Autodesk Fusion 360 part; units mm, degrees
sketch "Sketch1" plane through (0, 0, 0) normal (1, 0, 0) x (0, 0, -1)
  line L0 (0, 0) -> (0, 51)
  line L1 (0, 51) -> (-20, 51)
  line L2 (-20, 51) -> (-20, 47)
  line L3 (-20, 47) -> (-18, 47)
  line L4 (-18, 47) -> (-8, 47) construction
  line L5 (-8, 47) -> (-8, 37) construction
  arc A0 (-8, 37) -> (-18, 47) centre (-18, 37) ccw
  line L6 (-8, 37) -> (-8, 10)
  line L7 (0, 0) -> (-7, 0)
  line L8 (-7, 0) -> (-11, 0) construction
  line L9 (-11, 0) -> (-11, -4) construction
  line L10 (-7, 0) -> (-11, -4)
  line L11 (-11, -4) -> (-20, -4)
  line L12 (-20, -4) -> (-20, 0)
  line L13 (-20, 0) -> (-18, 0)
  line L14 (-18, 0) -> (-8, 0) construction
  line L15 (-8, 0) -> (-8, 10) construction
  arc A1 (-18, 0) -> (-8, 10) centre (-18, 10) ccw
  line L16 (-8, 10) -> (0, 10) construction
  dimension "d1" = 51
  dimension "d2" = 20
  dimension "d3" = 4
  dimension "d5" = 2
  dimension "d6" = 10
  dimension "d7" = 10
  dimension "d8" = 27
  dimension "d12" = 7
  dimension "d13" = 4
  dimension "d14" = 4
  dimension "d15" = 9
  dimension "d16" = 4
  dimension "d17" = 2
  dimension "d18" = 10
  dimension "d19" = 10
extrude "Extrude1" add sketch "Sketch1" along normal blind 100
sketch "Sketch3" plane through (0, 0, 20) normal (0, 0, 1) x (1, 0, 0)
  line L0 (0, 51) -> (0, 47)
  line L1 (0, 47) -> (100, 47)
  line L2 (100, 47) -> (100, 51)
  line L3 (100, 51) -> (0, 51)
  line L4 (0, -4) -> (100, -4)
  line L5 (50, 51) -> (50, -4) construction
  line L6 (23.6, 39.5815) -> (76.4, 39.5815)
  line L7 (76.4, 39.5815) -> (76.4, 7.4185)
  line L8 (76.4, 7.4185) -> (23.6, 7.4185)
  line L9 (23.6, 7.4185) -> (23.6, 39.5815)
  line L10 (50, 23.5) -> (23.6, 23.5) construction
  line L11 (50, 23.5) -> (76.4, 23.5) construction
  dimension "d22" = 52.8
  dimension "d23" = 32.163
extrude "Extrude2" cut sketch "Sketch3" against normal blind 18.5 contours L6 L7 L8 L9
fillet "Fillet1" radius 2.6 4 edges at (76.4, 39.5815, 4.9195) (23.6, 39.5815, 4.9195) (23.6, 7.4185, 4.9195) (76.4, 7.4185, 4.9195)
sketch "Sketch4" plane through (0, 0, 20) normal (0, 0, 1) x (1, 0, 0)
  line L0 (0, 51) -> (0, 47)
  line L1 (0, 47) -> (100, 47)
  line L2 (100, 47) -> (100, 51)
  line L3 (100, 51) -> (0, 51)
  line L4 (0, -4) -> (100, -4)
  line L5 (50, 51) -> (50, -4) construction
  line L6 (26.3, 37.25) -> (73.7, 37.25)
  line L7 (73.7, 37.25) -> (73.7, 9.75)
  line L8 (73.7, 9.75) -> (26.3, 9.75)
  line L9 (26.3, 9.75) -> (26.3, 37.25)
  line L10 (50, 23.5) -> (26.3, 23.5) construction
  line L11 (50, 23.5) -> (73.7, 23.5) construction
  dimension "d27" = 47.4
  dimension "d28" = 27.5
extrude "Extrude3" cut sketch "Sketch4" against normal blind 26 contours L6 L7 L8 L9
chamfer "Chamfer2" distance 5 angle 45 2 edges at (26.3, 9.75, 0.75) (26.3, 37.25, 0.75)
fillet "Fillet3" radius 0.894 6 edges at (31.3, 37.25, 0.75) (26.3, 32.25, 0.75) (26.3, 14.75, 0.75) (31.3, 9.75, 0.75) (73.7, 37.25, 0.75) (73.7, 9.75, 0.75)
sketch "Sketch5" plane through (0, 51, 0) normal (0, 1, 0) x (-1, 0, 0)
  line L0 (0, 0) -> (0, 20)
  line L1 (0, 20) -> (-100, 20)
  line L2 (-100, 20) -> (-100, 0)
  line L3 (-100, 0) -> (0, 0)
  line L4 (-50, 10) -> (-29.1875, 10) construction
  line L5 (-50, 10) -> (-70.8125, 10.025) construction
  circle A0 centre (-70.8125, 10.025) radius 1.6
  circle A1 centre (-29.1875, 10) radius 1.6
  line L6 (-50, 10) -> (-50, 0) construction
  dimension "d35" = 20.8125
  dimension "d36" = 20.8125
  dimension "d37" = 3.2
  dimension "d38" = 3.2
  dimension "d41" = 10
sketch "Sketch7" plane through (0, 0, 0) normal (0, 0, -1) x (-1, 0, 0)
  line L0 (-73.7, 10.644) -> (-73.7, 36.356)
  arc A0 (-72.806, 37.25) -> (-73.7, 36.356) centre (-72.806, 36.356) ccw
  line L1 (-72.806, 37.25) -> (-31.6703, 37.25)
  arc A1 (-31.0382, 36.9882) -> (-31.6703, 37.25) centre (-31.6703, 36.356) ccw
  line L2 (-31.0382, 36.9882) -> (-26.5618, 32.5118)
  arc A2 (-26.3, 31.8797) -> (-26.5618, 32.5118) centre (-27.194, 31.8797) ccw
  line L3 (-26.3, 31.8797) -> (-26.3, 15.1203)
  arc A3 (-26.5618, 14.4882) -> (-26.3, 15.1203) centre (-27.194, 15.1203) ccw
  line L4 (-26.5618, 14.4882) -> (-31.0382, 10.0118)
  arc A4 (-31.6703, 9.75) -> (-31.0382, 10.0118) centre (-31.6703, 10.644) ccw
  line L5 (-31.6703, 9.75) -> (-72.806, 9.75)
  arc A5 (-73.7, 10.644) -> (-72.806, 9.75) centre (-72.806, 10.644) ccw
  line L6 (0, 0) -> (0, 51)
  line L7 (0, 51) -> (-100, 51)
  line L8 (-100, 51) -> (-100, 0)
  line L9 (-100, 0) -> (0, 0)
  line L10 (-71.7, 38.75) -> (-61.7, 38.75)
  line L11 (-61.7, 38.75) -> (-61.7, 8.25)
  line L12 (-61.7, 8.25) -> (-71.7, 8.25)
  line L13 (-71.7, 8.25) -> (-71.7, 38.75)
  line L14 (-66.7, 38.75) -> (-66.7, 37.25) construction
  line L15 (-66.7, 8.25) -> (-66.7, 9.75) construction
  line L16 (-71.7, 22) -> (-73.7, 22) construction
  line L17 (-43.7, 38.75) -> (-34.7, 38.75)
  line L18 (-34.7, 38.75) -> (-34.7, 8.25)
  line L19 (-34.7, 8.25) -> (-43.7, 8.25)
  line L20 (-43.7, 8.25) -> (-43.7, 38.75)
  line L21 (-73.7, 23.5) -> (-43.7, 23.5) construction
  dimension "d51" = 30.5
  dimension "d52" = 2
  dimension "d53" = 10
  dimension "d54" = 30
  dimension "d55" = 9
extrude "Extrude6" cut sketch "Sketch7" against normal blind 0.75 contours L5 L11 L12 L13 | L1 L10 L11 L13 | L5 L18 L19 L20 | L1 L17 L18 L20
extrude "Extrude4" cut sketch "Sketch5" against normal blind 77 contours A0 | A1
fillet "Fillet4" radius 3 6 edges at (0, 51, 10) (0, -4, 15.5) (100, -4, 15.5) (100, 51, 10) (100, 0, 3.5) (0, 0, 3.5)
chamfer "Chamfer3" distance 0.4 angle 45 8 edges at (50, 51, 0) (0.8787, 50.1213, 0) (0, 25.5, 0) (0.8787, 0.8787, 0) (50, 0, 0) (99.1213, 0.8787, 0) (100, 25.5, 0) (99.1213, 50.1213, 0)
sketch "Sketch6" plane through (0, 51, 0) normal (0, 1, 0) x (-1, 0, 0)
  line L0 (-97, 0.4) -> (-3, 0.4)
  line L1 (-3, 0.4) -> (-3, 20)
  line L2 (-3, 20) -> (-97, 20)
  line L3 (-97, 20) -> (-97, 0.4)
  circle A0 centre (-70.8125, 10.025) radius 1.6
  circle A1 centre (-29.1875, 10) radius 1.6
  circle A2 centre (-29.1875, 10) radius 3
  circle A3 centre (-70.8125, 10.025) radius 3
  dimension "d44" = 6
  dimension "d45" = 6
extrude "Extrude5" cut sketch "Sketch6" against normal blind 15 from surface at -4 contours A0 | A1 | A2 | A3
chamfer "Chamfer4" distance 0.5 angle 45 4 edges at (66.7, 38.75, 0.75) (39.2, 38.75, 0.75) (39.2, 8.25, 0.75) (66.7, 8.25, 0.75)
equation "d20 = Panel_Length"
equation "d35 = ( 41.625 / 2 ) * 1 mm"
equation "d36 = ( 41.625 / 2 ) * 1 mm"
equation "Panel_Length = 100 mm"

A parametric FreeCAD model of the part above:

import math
import FreeCAD as App
import Part
import Sketcher


def edges_at(feature, points):
    """Names of the edges that pass closest to the given points."""
    edges = feature.Shape.Edges
    near = lambda p: min(range(len(edges)), key=lambda i: edges[i].distToShape(Part.Vertex(*p))[0])
    return sorted({f"Edge{near(p) + 1}" for p in points})


def add_polygon(sketch, points):
    """Adds a closed chain of lines whose ends are joined by coincident constraints."""
    first, n = sketch.GeometryCount, len(points)
    for a, b in zip(points, points[1:] + points[:1]):
        sketch.addGeometry(Part.LineSegment(App.Vector(*a, 0), App.Vector(*b, 0)), False)
    for i in range(n):
        sketch.addConstraint(Sketcher.Constraint("Coincident", first + i, 2, first + (i + 1) % n, 1))

doc = App.newDocument("Part")
body = doc.addObject("PartDesign::Body", "Body")

# Sketch on YZ plane
sketch1 = doc.addObject("Sketcher::SketchObject", "Sketch")
body.addObject(sketch1)
sketch1.AttachmentSupport = (doc.YZ_Plane, [""])
sketch1.MapMode = "FlatFace"
sketch1.addGeometry(Part.LineSegment(App.Vector(0, 7, 0), App.Vector(0, 0, 0)), False)
sketch1.addGeometry(Part.LineSegment(App.Vector(0, 0, 0), App.Vector(51, 0, 0)), False)
sketch1.addGeometry(Part.LineSegment(App.Vector(51, 0, 0), App.Vector(51, 20, 0)), False)
sketch1.addGeometry(Part.LineSegment(App.Vector(51, 20, 0), App.Vector(47, 20, 0)), False)
sketch1.addGeometry(Part.LineSegment(App.Vector(47, 20, 0), App.Vector(47, 18, 0)), False)
sketch1.addGeometry(Part.ArcOfCircle(Part.Circle(App.Vector(37, 18, 0), App.Vector(0, 0, 1), 10), math.radians(-90), math.radians(0)), False)
sketch1.addGeometry(Part.LineSegment(App.Vector(37, 8, 0), App.Vector(10, 8, 0)), False)
sketch1.addGeometry(Part.ArcOfCircle(Part.Circle(App.Vector(10, 18, 0), App.Vector(0, 0, 1), 10), math.radians(180), math.radians(270)), False)
sketch1.addGeometry(Part.LineSegment(App.Vector(0, 18, 0), App.Vector(0, 20, 0)), False)
sketch1.addGeometry(Part.LineSegment(App.Vector(0, 20, 0), App.Vector(-4, 20, 0)), False)
sketch1.addGeometry(Part.LineSegment(App.Vector(-4, 20, 0), App.Vector(-4, 11, 0)), False)
sketch1.addGeometry(Part.LineSegment(App.Vector(-4, 11, 0), App.Vector(0, 7, 0)), False)
sketch1.addConstraint(Sketcher.Constraint("Coincident", 0, 2, 1, 1))
sketch1.addConstraint(Sketcher.Constraint("Coincident", 1, 2, 2, 1))
sketch1.addConstraint(Sketcher.Constraint("Coincident", 2, 2, 3, 1))
sketch1.addConstraint(Sketcher.Constraint("Coincident", 3, 2, 4, 1))
sketch1.addConstraint(Sketcher.Constraint("Tangent", 4, 2, 5, 2))
sketch1.addConstraint(Sketcher.Constraint("Tangent", 5, 1, 6, 1))
sketch1.addConstraint(Sketcher.Constraint("Tangent", 6, 2, 7, 2))
sketch1.addConstraint(Sketcher.Constraint("Tangent", 7, 1, 8, 1))
sketch1.addConstraint(Sketcher.Constraint("Coincident", 8, 2, 9, 1))
sketch1.addConstraint(Sketcher.Constraint("Coincident", 9, 2, 10, 1))
sketch1.addConstraint(Sketcher.Constraint("Coincident", 10, 2, 11, 1))
sketch1.addConstraint(Sketcher.Constraint("Coincident", 11, 2, 0, 1))
sketch1.addConstraint(Sketcher.Constraint("Vertical", 0))
sketch1.addConstraint(Sketcher.Constraint("Horizontal", 1))
sketch1.addConstraint(Sketcher.Constraint("Vertical", 2))
sketch1.addConstraint(Sketcher.Constraint("Horizontal", 3))
sketch1.addConstraint(Sketcher.Constraint("Vertical", 4))
sketch1.addConstraint(Sketcher.Constraint("Horizontal", 6))
sketch1.addConstraint(Sketcher.Constraint("Vertical", 8))
sketch1.addConstraint(Sketcher.Constraint("Horizontal", 9))
sketch1.addConstraint(Sketcher.Constraint("Vertical", 10))
sketch1.addConstraint(Sketcher.Constraint("Coincident", 0, 2, -1, 1))
sketch1.addConstraint(Sketcher.Constraint("Equal", 5, 7))
sketch1.addConstraint(Sketcher.Constraint("PointOnObject", 7, 1, -2))
sketch1.addConstraint(Sketcher.Constraint("Horizontal", 3, 2, 8, 2))
sketch1.addConstraint(Sketcher.Constraint("Equal", 3, 9))
sketch1.addConstraint(Sketcher.Constraint("Radius", 5, 10.0))
sketch1.addConstraint(Sketcher.Constraint("DistanceX", 1, 1, 1, 2, 51.0))
sketch1.addConstraint(Sketcher.Constraint("DistanceX", 3, 2, 3, 1, 4.0))
sketch1.addConstraint(Sketcher.Constraint("DistanceY", 0, 2, 0, 1, 7.0))
sketch1.addConstraint(Sketcher.Constraint("DistanceY", 2, 1, 2, 2, 20.0))
sketch1.addConstraint(Sketcher.Constraint("DistanceY", 4, 2, 4, 1, 2.0))
sketch1.addConstraint(Sketcher.Constraint("DistanceY", 10, 2, 10, 1, 9.0))
pad1 = doc.addObject("PartDesign::Pad", "Pad")
body.addObject(pad1)
pad1.Profile = sketch1
pad1.Length = 100

# Sketch on XY plane
sketch2 = doc.addObject("Sketcher::SketchObject", "Sketch001")
body.addObject(sketch2)
sketch2.AttachmentSupport = (doc.XY_Plane, [""])
sketch2.MapMode = "FlatFace"
sketch2.AttachmentOffset = App.Placement(App.Vector(0, 0, 20), App.Rotation())
add_polygon(sketch2, [(76.4, 39.5815), (23.6, 39.5815), (23.6, 7.4185), (76.4, 7.4185)])  # lines 0-3
sketch2.addConstraint(Sketcher.Constraint("Horizontal", 0))
sketch2.addConstraint(Sketcher.Constraint("Vertical", 1))
sketch2.addConstraint(Sketcher.Constraint("Horizontal", 2))
sketch2.addConstraint(Sketcher.Constraint("Vertical", 3))
sketch2.addConstraint(Sketcher.Constraint("DistanceX", 0, 2, 0, 1, 52.8))
sketch2.addConstraint(Sketcher.Constraint("DistanceY", 1, 2, 1, 1, 32.163))
sketch2.addConstraint(Sketcher.Constraint("DistanceX", -1, 1, 0, 2, 23.6))
sketch2.addConstraint(Sketcher.Constraint("DistanceY", -1, 1, 0, 2, 39.5815))
pocket1 = doc.addObject("PartDesign::Pocket", "Pocket")
body.addObject(pocket1)
pocket1.Profile = sketch2
pocket1.Length = 18.5
doc.recompute()

fillet = doc.addObject("PartDesign::Fillet", "Fillet")
body.addObject(fillet)
fillet.Base = (pocket1, edges_at(pocket1, [
    (76.4, 39.581, 4.92),
    (23.6, 39.581, 4.92),
    (23.6, 7.418, 4.92),
    (76.4, 7.418, 4.92),
]))
fillet.Radius = 2.6

# Sketch on XY plane
sketch3 = doc.addObject("Sketcher::SketchObject", "Sketch002")
body.addObject(sketch3)
sketch3.AttachmentSupport = (doc.XY_Plane, [""])
sketch3.MapMode = "FlatFace"
sketch3.AttachmentOffset = App.Placement(App.Vector(0, 0, 20), App.Rotation())
add_polygon(sketch3, [(73.7, 37.25), (26.3, 37.25), (26.3, 9.75), (73.7, 9.75)])  # lines 0-3
sketch3.addConstraint(Sketcher.Constraint("Horizontal", 0))
sketch3.addConstraint(Sketcher.Constraint("Vertical", 1))
sketch3.addConstraint(Sketcher.Constraint("Horizontal", 2))
sketch3.addConstraint(Sketcher.Constraint("Vertical", 3))
sketch3.addConstraint(Sketcher.Constraint("DistanceX", 0, 2, 0, 1, 47.4))
sketch3.addConstraint(Sketcher.Constraint("DistanceY", 1, 2, 1, 1, 27.5))
sketch3.addConstraint(Sketcher.Constraint("DistanceX", -1, 1, 0, 2, 26.3))
sketch3.addConstraint(Sketcher.Constraint("DistanceY", -1, 1, 0, 2, 37.25))
pocket2 = doc.addObject("PartDesign::Pocket", "Pocket001")
body.addObject(pocket2)
pocket2.Profile = sketch3
pocket2.Length = 26
doc.recompute()

chamfer = doc.addObject("PartDesign::Chamfer", "Chamfer")
body.addObject(chamfer)
chamfer.Base = (pocket2, edges_at(pocket2, [(26.3, 9.75, 0.75), (26.3, 37.25, 0.75)]))
chamfer.Size = 5
doc.recompute()

fillet2 = doc.addObject("PartDesign::Fillet", "Fillet001")
body.addObject(fillet2)
fillet2.Base = (chamfer, edges_at(chamfer, [
    (31.3, 37.25, 0.75),
    (26.3, 32.25, 0.75),
    (26.3, 14.75, 0.75),
    (31.3, 9.75, 0.75),
    (73.7, 37.25, 0.75),
    (73.7, 9.75, 0.75),
]))
fillet2.Radius = 0.894

# Sketch on XY plane
sketch4 = doc.addObject("Sketcher::SketchObject", "Sketch003")
body.addObject(sketch4)
sketch4.AttachmentSupport = (doc.XY_Plane, [""])
sketch4.MapMode = "FlatFace"
add_polygon(sketch4, [(61.7, 9.75), (71.7, 9.75), (71.7, 8.25), (61.7, 8.25)])  # lines 0-3
add_polygon(sketch4, [(71.7, 38.75), (71.7, 37.25), (61.7, 37.25), (61.7, 38.75)])  # lines 4-7
add_polygon(sketch4, [(34.7, 9.75), (43.7, 9.75), (43.7, 8.25), (34.7, 8.25)])  # lines 8-11
add_polygon(sketch4, [(43.7, 38.75), (43.7, 37.25), (34.7, 37.25), (34.7, 38.75)])  # lines 12-15
sketch4.addConstraint(Sketcher.Constraint("Horizontal", 0))
sketch4.addConstraint(Sketcher.Constraint("Vertical", 1))
sketch4.addConstraint(Sketcher.Constraint("Horizontal", 2))
sketch4.addConstraint(Sketcher.Constraint("Vertical", 3))
sketch4.addConstraint(Sketcher.Constraint("Vertical", 4))
sketch4.addConstraint(Sketcher.Constraint("Horizontal", 5))
sketch4.addConstraint(Sketcher.Constraint("Vertical", 6))
sketch4.addConstraint(Sketcher.Constraint("Horizontal", 7))
sketch4.addConstraint(Sketcher.Constraint("Horizontal", 8))
sketch4.addConstraint(Sketcher.Constraint("Vertical", 9))
sketch4.addConstraint(Sketcher.Constraint("Horizontal", 10))
sketch4.addConstraint(Sketcher.Constraint("Vertical", 11))
sketch4.addConstraint(Sketcher.Constraint("Vertical", 12))
sketch4.addConstraint(Sketcher.Constraint("Horizontal", 13))
sketch4.addConstraint(Sketcher.Constraint("Vertical", 14))
sketch4.addConstraint(Sketcher.Constraint("Horizontal", 15))
sketch4.addConstraint(Sketcher.Constraint("Horizontal", 3, 2, 8, 2))
sketch4.addConstraint(Sketcher.Constraint("Horizontal", 2, 2, 9, 2))
sketch4.addConstraint(Sketcher.Constraint("Horizontal", 5, 2, 12, 2))
sketch4.addConstraint(Sketcher.Constraint("Horizontal", 7, 2, 14, 2))
sketch4.addConstraint(Sketcher.Constraint("Vertical", 1, 2, 4, 2))
sketch4.addConstraint(Sketcher.Constraint("Vertical", 3, 2, 5, 2))
sketch4.addConstraint(Sketcher.Constraint("Vertical", 9, 2, 12, 2))
sketch4.addConstraint(Sketcher.Constraint("Vertical", 11, 2, 13, 2))
sketch4.addConstraint(Sketcher.Constraint("Equal", 3, 4))
sketch4.addConstraint(Sketcher.Constraint("DistanceX", 0, 1, 0, 2, 10.0))
sketch4.addConstraint(Sketcher.Constraint("DistanceX", 8, 1, 8, 2, 9.0))
sketch4.addConstraint(Sketcher.Constraint("DistanceY", 2, 2, 6, 2, 30.5))
sketch4.addConstraint(Sketcher.Constraint("DistanceY", 1, 2, 1, 1, 1.5))
sketch4.addConstraint(Sketcher.Constraint("DistanceX", 8, 2, 3, 2, 18.0))
sketch4.addConstraint(Sketcher.Constraint("DistanceX", -1, 1, 0, 2, 71.7))
sketch4.addConstraint(Sketcher.Constraint("DistanceY", -1, 1, 0, 2, 9.75))
pocket3 = doc.addObject("PartDesign::Pocket", "Pocket002")
body.addObject(pocket3)
pocket3.Profile = sketch4
pocket3.Length = 0.75
pocket3.Reversed = True

# Sketch on XZ plane
sketch5 = doc.addObject("Sketcher::SketchObject", "Sketch004")
body.addObject(sketch5)
sketch5.AttachmentSupport = (doc.XZ_Plane, [""])
sketch5.MapMode = "FlatFace"
sketch5.AttachmentOffset = App.Placement(App.Vector(0, 0, -51), App.Rotation())
sketch5.addGeometry(Part.Circle(App.Vector(70.8125, 10.025, 0), App.Vector(0, 0, 1), 1.6), False)
sketch5.addGeometry(Part.Circle(App.Vector(29.1875, 10, 0), App.Vector(0, 0, 1), 1.6), False)
sketch5.addConstraint(Sketcher.Constraint("Equal", 0, 1))
sketch5.addConstraint(Sketcher.Constraint("Diameter", 0, 3.2))
sketch5.addConstraint(Sketcher.Constraint("DistanceY", -1, 1, 1, 3, 10.0))
sketch5.addConstraint(Sketcher.Constraint("DistanceY", -1, 1, 0, 3, 10.025))
sketch5.addConstraint(Sketcher.Constraint("DistanceX", 1, 3, 0, 3, 41.625))
sketch5.addConstraint(Sketcher.Constraint("DistanceX", -1, 1, 0, 3, 70.8125))
pocket4 = doc.addObject("PartDesign::Pocket", "Pocket003")
body.addObject(pocket4)
pocket4.Profile = sketch5
pocket4.Length = 77
pocket4.Reversed = True
doc.recompute()

fillet3 = doc.addObject("PartDesign::Fillet", "Fillet002")
body.addObject(fillet3)
fillet3.Base = (pocket4, edges_at(pocket4, [
    (0, 51, 10),
    (0, -4, 15.5),
    (100, -4, 15.5),
    (100, 51, 10),
    (100, 0, 3.5),
    (0, 0, 3.5),
]))
fillet3.Radius = 3
doc.recompute()

chamfer2 = doc.addObject("PartDesign::Chamfer", "Chamfer001")
body.addObject(chamfer2)
chamfer2.Base = (fillet3, edges_at(fillet3, [
    (50, 51, 0),
    (0.879, 50.121, 0),
    (0, 25.5, 0),
    (0.879, 0.879, 0),
    (50, 0, 0),
    (99.121, 0.879, 0),
    (100, 25.5, 0),
    (99.121, 50.121, 0),
]))
chamfer2.Size = 0.4

# Sketch on XZ plane
sketch6 = doc.addObject("Sketcher::SketchObject", "Sketch005")
body.addObject(sketch6)
sketch6.AttachmentSupport = (doc.XZ_Plane, [""])
sketch6.MapMode = "FlatFace"
sketch6.AttachmentOffset = App.Placement(App.Vector(0, 0, -47), App.Rotation())
sketch6.addGeometry(Part.Circle(App.Vector(70.8125, 10.025, 0), App.Vector(0, 0, 1), 3), False)
sketch6.addGeometry(Part.Circle(App.Vector(29.1875, 10, 0), App.Vector(0, 0, 1), 3), False)
sketch6.addConstraint(Sketcher.Constraint("Equal", 0, 1))
sketch6.addConstraint(Sketcher.Constraint("Diameter", 0, 6.0))
sketch6.addConstraint(Sketcher.Constraint("DistanceY", -1, 1, 1, 3, 10.0))
sketch6.addConstraint(Sketcher.Constraint("DistanceY", -1, 1, 0, 3, 10.025))
sketch6.addConstraint(Sketcher.Constraint("DistanceX", 1, 3, 0, 3, 41.625))
sketch6.addConstraint(Sketcher.Constraint("DistanceX", -1, 1, 0, 3, 70.8125))
pocket5 = doc.addObject("PartDesign::Pocket", "Pocket004")
body.addObject(pocket5)
pocket5.Profile = sketch6
pocket5.Length = 15
pocket5.Reversed = True
doc.recompute()

chamfer3 = doc.addObject("PartDesign::Chamfer", "Chamfer002")
body.addObject(chamfer3)
chamfer3.Base = (pocket5, edges_at(pocket5, [
    (66.7, 38.75, 0.75),
    (39.2, 38.75, 0.75),
    (39.2, 8.25, 0.75),
    (66.7, 8.25, 0.75),
]))
chamfer3.Size = 0.5

doc.recompute()
